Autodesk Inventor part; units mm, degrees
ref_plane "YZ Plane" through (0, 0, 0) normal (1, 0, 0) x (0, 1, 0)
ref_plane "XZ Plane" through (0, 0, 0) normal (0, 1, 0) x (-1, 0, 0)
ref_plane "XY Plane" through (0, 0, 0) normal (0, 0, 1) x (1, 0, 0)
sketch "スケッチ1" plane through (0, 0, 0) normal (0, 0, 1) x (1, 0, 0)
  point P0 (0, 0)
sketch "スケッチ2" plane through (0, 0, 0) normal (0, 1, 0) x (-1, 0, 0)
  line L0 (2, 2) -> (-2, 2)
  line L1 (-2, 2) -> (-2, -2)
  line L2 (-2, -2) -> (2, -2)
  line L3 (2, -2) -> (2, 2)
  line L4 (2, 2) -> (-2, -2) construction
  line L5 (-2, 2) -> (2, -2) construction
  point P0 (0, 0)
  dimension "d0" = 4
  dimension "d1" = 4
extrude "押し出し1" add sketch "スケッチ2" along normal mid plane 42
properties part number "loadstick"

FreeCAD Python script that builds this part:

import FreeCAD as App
import Part
import Sketcher

doc = App.newDocument("Part")
body = doc.addObject("PartDesign::Body", "Body")

sketch1 = body.newObject("Sketcher::SketchObject", "Sketch")
sketch1.AttachmentSupport = (doc.getObject("XZ_Plane"), [""])
sketch1.MapMode = "FlatFace"
sketch1.addGeometry(Part.LineSegment(App.Vector(-2, -2, 0), App.Vector(-2, 2, 0)), False)
sketch1.addGeometry(Part.LineSegment(App.Vector(-2, 2, 0), App.Vector(2, 2, 0)), False)
sketch1.addGeometry(Part.LineSegment(App.Vector(2, 2, 0), App.Vector(2, -2, 0)), False)
sketch1.addGeometry(Part.LineSegment(App.Vector(2, -2, 0), App.Vector(-2, -2, 0)), False)
sketch1.addConstraint(Sketcher.Constraint("Coincident", 0, 2, 1, 1))
sketch1.addConstraint(Sketcher.Constraint("Coincident", 1, 2, 2, 1))
sketch1.addConstraint(Sketcher.Constraint("Coincident", 2, 2, 3, 1))
sketch1.addConstraint(Sketcher.Constraint("Coincident", 3, 2, 0, 1))
sketch1.addConstraint(Sketcher.Constraint("Vertical", 0))
sketch1.addConstraint(Sketcher.Constraint("Horizontal", 1))
sketch1.addConstraint(Sketcher.Constraint("Vertical", 2))
sketch1.addConstraint(Sketcher.Constraint("Horizontal", 3))
sketch1.addConstraint(Sketcher.Constraint("Symmetric", 0, 2, 2, 2, -1, 1))
sketch1.addConstraint(Sketcher.Constraint("Equal", 3, 0))
sketch1.addConstraint(Sketcher.Constraint("DistanceX", 1, 1, 1, 2, 4.0))
pad1 = body.newObject("PartDesign::Pad", "Pad")
pad1.Profile = sketch1
pad1.Length = 42
pad1.Midplane = True

doc.recompute()
